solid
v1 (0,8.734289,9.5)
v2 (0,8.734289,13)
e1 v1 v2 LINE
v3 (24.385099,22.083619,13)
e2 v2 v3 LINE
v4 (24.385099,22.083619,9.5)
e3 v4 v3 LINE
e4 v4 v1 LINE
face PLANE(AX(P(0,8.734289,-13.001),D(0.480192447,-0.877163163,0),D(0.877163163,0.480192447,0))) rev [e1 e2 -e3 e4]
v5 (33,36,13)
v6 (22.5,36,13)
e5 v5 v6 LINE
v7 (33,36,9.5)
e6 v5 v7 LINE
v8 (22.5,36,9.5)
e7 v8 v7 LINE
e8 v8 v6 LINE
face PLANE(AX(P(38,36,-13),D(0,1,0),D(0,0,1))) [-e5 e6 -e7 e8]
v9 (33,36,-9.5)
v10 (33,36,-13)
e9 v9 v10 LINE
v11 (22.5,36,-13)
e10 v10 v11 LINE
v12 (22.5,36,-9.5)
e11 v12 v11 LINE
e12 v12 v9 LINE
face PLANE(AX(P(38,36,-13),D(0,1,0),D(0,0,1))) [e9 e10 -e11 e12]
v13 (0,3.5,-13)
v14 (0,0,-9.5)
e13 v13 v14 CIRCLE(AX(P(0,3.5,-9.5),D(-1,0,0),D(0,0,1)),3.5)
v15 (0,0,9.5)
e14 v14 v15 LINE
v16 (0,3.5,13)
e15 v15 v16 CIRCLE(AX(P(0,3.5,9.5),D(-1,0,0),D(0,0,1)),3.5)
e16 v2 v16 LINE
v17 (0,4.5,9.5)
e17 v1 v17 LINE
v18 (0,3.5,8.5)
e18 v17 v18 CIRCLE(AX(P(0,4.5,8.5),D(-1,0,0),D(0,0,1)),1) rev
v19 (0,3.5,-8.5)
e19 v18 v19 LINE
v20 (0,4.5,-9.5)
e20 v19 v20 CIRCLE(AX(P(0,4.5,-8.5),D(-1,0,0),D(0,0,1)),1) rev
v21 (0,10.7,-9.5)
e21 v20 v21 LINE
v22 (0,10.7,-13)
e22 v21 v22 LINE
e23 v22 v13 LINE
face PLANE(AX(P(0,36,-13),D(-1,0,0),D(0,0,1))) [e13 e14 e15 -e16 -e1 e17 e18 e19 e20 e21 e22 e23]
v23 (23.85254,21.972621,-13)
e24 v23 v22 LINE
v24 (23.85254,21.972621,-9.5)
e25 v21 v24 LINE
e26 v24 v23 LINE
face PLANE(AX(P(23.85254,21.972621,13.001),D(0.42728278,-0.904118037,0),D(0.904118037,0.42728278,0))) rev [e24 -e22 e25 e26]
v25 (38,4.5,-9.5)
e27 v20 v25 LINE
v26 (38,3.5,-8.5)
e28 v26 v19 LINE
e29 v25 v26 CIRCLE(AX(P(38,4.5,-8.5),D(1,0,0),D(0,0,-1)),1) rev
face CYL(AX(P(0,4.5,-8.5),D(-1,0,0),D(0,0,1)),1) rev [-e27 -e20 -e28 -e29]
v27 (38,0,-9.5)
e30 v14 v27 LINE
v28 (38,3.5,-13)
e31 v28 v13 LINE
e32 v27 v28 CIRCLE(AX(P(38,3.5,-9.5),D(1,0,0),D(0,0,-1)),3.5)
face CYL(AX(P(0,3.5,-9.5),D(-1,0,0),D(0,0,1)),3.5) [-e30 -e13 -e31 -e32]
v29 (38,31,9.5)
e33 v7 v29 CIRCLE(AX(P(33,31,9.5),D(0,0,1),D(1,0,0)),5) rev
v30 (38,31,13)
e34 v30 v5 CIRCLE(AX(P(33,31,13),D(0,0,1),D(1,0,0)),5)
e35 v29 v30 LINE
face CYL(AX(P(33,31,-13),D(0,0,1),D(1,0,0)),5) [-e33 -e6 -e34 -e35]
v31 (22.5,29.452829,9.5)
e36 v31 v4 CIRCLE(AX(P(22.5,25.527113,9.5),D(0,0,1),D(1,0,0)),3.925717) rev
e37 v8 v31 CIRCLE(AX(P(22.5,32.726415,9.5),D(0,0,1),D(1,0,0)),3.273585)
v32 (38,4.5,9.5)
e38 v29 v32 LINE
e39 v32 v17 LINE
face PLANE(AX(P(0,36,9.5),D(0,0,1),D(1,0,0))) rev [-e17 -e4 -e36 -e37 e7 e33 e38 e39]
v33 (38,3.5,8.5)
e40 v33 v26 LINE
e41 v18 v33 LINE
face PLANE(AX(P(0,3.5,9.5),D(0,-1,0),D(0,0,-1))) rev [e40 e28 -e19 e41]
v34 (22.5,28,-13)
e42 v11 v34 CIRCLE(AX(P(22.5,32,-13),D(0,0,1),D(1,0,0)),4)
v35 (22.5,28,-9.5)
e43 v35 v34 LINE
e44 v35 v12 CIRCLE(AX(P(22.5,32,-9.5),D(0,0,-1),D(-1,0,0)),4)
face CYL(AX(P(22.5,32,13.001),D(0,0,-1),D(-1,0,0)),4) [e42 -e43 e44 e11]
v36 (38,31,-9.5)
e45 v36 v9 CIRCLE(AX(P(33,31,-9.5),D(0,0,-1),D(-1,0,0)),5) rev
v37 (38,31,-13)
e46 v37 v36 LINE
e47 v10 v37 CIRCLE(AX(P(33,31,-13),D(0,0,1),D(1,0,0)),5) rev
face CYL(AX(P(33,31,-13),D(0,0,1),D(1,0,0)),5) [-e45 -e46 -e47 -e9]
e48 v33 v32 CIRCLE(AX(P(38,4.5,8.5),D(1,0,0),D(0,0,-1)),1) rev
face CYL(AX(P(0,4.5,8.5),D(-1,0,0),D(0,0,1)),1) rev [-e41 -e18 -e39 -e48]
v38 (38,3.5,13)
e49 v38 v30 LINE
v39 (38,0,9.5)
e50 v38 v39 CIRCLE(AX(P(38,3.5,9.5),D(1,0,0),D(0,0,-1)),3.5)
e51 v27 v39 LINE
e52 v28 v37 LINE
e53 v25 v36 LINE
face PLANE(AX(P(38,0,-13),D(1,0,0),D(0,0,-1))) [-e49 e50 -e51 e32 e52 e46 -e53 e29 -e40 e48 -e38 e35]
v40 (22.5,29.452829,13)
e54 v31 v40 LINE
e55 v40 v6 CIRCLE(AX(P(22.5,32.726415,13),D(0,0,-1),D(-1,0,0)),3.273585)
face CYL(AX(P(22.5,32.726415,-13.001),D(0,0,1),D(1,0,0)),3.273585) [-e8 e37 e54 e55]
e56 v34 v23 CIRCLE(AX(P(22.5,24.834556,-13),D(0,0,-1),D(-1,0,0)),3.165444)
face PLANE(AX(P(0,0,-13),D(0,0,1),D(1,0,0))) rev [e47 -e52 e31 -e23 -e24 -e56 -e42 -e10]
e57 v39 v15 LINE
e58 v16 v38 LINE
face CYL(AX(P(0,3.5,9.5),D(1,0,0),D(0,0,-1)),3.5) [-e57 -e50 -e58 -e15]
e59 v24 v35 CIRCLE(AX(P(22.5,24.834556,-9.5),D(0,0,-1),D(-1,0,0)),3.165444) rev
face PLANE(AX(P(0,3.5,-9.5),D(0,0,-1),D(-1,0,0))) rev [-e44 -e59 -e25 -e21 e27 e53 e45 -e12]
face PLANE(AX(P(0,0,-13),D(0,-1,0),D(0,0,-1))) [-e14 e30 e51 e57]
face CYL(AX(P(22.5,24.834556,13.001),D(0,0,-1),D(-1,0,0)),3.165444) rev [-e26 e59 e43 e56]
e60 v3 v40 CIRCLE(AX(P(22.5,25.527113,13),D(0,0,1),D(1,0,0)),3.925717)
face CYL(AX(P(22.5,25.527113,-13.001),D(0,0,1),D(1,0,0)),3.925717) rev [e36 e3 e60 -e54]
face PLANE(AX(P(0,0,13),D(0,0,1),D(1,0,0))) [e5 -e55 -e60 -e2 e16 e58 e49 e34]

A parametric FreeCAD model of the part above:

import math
import FreeCAD as App
import Part
import Sketcher
from FreeCAD import Vector


def edges_at(feature, points):
    """Names of the edges that pass closest to the given points."""
    edges = feature.Shape.Edges
    near = lambda p: min(range(len(edges)), key=lambda i: edges[i].distToShape(Part.Vertex(*p))[0])
    return sorted({f"Edge{near(p) + 1}" for p in points})


def add_polygon(sketch, points):
    """Adds a closed chain of lines whose ends are joined by coincident constraints."""
    first, n = sketch.GeometryCount, len(points)
    for a, b in zip(points, points[1:] + points[:1]):
        sketch.addGeometry(Part.LineSegment(App.Vector(*a, 0), App.Vector(*b, 0)), False)
    for i in range(n):
        sketch.addConstraint(Sketcher.Constraint("Coincident", first + i, 2, first + (i + 1) % n, 1))

doc = App.newDocument("Part")
body = doc.addObject("PartDesign::Body", "Body")

sketch1 = doc.addObject("Sketcher::SketchObject", "Sketch")
body.addObject(sketch1)
sketch1.AttachmentSupport = (doc.XY_Plane, [""])
sketch1.MapMode = "FlatFace"
sketch1.AttachmentOffset = App.Placement(Vector(0, 0, 13), App.Rotation())
add_polygon(sketch1, [(0, 36), (0, 0), (38, 0), (38, 36)])
sketch1.addConstraint(Sketcher.Constraint("Vertical", 0))
sketch1.addConstraint(Sketcher.Constraint("Horizontal", 1))
sketch1.addConstraint(Sketcher.Constraint("Vertical", 2))
sketch1.addConstraint(Sketcher.Constraint("Horizontal", 3))
sketch1.addConstraint(Sketcher.Constraint("Coincident", 0, 2, -1, 1))
sketch1.addConstraint(Sketcher.Constraint("DistanceX", 1, 1, 1, 2, 38.0))
sketch1.addConstraint(Sketcher.Constraint("DistanceY", 0, 2, 0, 1, 36.0))
pad1 = doc.addObject("PartDesign::Pad", "Pad")
body.addObject(pad1)
pad1.Profile = sketch1
pad1.Length = 26
pad1.Reversed = True

sketch2 = doc.addObject("Sketcher::SketchObject", "Sketch001")
body.addObject(sketch2)
sketch2.AttachmentSupport = (doc.YZ_Plane, [""])
sketch2.MapMode = "FlatFace"
sketch2.AttachmentOffset = App.Placement(Vector(0, 0, 38), App.Rotation())
add_polygon(sketch2, [(36, 10), (4, 10), (4, -10), (36, -10)])
sketch2.addConstraint(Sketcher.Constraint("Horizontal", 0))
sketch2.addConstraint(Sketcher.Constraint("Vertical", 1))
sketch2.addConstraint(Sketcher.Constraint("Horizontal", 2))
sketch2.addConstraint(Sketcher.Constraint("Vertical", 3))
sketch2.addConstraint(Sketcher.Constraint("DistanceY", 1, 2, 1, 1, 19.0))
sketch2.addConstraint(Sketcher.Constraint("DistanceX", 0, 2, 0, 1, 32.5))
sketch2.addConstraint(Sketcher.Constraint("DistanceX", -1, 1, 2, 2, 36.0))
sketch2.addConstraint(Sketcher.Constraint("DistanceY", -1, 1, 0, 2, 9.5))
pocket1 = doc.addObject("PartDesign::Pocket", "Pocket")
body.addObject(pocket1)
pocket1.Profile = sketch2
pocket1.Type = "ThroughAll"

sketch3 = doc.addObject("Sketcher::SketchObject", "Sketch002")
body.addObject(sketch3)
sketch3.AttachmentSupport = (doc.XY_Plane, [""])
sketch3.MapMode = "FlatFace"
sketch3.AttachmentOffset = App.Placement(Vector(0, 0, 13), App.Rotation())
sketch3.addGeometry(Part.LineSegment(Vector(22.5, 36, 0), Vector(0, 36, 0)), False)
sketch3.addGeometry(Part.LineSegment(Vector(0, 36, 0), Vector(0, 8.7, 0)), False)
sketch3.addGeometry(Part.LineSegment(Vector(0, 8.7, 0), Vector(24.4, 22.1, 0)), False)
sketch3.addGeometry(Part.ArcOfCircle(Part.Circle(Vector(22.5, 25.5, 0), Vector(0, 0, 1), 3.9), math.radians(-61), math.radians(90)), False)
sketch3.addGeometry(Part.ArcOfCircle(Part.Circle(Vector(22.5, 32.7, 0), Vector(0, 0, 1), 3.3), math.radians(90), math.radians(270)), False)
sketch3.addConstraint(Sketcher.Constraint("Coincident", 0, 2, 1, 1))
sketch3.addConstraint(Sketcher.Constraint("Coincident", 1, 2, 2, 1))
sketch3.addConstraint(Sketcher.Constraint("Tangent", 2, 2, 3, 1))
sketch3.addConstraint(Sketcher.Constraint("Tangent", 3, 2, 4, 2))
sketch3.addConstraint(Sketcher.Constraint("Tangent", 4, 1, 0, 1))
sketch3.addConstraint(Sketcher.Constraint("Horizontal", 0))
sketch3.addConstraint(Sketcher.Constraint("Vertical", 1))
sketch3.addConstraint(Sketcher.Constraint("PointOnObject", 0, 2, -2))
sketch3.addConstraint(Sketcher.Constraint("Vertical", 3, 3, 4, 3))
sketch3.addConstraint(Sketcher.Constraint("DistanceX", 0, 2, 0, 1, 22.5))
sketch3.addConstraint(Sketcher.Constraint("DistanceY", -1, 1, 0, 2, 36.0))
sketch3.addConstraint(Sketcher.Constraint("Radius", 3, 3.925717))
sketch3.addConstraint(Sketcher.Constraint("Radius", 4, 3.273585))
sketch3.addConstraint(Sketcher.Constraint("DistanceY", 1, 2, 1, 1, 27.265711))
pocket2 = doc.addObject("PartDesign::Pocket", "Pocket001")
body.addObject(pocket2)
pocket2.Profile = sketch3
pocket2.Type = "UpToFirst"

sketch4 = doc.addObject("Sketcher::SketchObject", "Sketch003")
body.addObject(sketch4)
sketch4.AttachmentSupport = (doc.XY_Plane, [""])
sketch4.MapMode = "FlatFace"
sketch4.AttachmentOffset = App.Placement(Vector(0, 0, -13), App.Rotation())
sketch4.addGeometry(Part.LineSegment(Vector(23.9, 22, 0), Vector(0, 10.7, 0)), False)
sketch4.addGeometry(Part.LineSegment(Vector(0, 10.7, 0), Vector(0, 36, 0)), False)
sketch4.addGeometry(Part.LineSegment(Vector(0, 36, 0), Vector(22.5, 36, 0)), False)
sketch4.addGeometry(Part.ArcOfCircle(Part.Circle(Vector(22.5, 32, 0), Vector(0, 0, 1), 4), math.radians(90), math.radians(270)), False)
sketch4.addGeometry(Part.ArcOfCircle(Part.Circle(Vector(22.5, 24.8, 0), Vector(0, 0, 1), 3.2), math.radians(-65), math.radians(90)), False)
sketch4.addConstraint(Sketcher.Constraint("Coincident", 0, 2, 1, 1))
sketch4.addConstraint(Sketcher.Constraint("Coincident", 1, 2, 2, 1))
sketch4.addConstraint(Sketcher.Constraint("Tangent", 2, 2, 3, 1))
sketch4.addConstraint(Sketcher.Constraint("Tangent", 3, 2, 4, 2))
sketch4.addConstraint(Sketcher.Constraint("Tangent", 4, 1, 0, 1))
sketch4.addConstraint(Sketcher.Constraint("Vertical", 1))
sketch4.addConstraint(Sketcher.Constraint("Horizontal", 2))
sketch4.addConstraint(Sketcher.Constraint("PointOnObject", 0, 2, -2))
sketch4.addConstraint(Sketcher.Constraint("Vertical", 3, 3, 4, 3))
sketch4.addConstraint(Sketcher.Constraint("Radius", 3, 4.0))
sketch4.addConstraint(Sketcher.Constraint("DistanceX", 2, 1, 2, 2, 22.5))
sketch4.addConstraint(Sketcher.Constraint("DistanceY", 1, 1, 1, 2, 25.3))
sketch4.addConstraint(Sketcher.Constraint("DistanceY", -1, 1, 3, 3, 32.0))
sketch4.addConstraint(Sketcher.Constraint("Radius", 4, 3.165444))
pocket3 = doc.addObject("PartDesign::Pocket", "Pocket002")
body.addObject(pocket3)
pocket3.Profile = sketch4
pocket3.Type = "UpToFirst"
pocket3.Reversed = True
doc.recompute()

fillet = doc.addObject("PartDesign::Fillet", "Fillet")
body.addObject(fillet)
fillet.Base = (pocket3, edges_at(pocket3, [(19, 3.5, -9.5), (19, 3.5, 9.5)]))
fillet.Radius = 1
doc.recompute()

fillet2 = doc.addObject("PartDesign::Fillet", "Fillet001")
body.addObject(fillet2)
fillet2.Base = (fillet, edges_at(fillet, [(19, 0, -13), (19, 0, 13)]))
fillet2.Radius = 3.5
doc.recompute()

fillet3 = doc.addObject("PartDesign::Fillet", "Fillet002")
body.addObject(fillet3)
fillet3.Base = (fillet2, edges_at(fillet2, [(38, 36, 11.25), (38, 36, -11.25)]))
fillet3.Radius = 5

doc.recompute()
